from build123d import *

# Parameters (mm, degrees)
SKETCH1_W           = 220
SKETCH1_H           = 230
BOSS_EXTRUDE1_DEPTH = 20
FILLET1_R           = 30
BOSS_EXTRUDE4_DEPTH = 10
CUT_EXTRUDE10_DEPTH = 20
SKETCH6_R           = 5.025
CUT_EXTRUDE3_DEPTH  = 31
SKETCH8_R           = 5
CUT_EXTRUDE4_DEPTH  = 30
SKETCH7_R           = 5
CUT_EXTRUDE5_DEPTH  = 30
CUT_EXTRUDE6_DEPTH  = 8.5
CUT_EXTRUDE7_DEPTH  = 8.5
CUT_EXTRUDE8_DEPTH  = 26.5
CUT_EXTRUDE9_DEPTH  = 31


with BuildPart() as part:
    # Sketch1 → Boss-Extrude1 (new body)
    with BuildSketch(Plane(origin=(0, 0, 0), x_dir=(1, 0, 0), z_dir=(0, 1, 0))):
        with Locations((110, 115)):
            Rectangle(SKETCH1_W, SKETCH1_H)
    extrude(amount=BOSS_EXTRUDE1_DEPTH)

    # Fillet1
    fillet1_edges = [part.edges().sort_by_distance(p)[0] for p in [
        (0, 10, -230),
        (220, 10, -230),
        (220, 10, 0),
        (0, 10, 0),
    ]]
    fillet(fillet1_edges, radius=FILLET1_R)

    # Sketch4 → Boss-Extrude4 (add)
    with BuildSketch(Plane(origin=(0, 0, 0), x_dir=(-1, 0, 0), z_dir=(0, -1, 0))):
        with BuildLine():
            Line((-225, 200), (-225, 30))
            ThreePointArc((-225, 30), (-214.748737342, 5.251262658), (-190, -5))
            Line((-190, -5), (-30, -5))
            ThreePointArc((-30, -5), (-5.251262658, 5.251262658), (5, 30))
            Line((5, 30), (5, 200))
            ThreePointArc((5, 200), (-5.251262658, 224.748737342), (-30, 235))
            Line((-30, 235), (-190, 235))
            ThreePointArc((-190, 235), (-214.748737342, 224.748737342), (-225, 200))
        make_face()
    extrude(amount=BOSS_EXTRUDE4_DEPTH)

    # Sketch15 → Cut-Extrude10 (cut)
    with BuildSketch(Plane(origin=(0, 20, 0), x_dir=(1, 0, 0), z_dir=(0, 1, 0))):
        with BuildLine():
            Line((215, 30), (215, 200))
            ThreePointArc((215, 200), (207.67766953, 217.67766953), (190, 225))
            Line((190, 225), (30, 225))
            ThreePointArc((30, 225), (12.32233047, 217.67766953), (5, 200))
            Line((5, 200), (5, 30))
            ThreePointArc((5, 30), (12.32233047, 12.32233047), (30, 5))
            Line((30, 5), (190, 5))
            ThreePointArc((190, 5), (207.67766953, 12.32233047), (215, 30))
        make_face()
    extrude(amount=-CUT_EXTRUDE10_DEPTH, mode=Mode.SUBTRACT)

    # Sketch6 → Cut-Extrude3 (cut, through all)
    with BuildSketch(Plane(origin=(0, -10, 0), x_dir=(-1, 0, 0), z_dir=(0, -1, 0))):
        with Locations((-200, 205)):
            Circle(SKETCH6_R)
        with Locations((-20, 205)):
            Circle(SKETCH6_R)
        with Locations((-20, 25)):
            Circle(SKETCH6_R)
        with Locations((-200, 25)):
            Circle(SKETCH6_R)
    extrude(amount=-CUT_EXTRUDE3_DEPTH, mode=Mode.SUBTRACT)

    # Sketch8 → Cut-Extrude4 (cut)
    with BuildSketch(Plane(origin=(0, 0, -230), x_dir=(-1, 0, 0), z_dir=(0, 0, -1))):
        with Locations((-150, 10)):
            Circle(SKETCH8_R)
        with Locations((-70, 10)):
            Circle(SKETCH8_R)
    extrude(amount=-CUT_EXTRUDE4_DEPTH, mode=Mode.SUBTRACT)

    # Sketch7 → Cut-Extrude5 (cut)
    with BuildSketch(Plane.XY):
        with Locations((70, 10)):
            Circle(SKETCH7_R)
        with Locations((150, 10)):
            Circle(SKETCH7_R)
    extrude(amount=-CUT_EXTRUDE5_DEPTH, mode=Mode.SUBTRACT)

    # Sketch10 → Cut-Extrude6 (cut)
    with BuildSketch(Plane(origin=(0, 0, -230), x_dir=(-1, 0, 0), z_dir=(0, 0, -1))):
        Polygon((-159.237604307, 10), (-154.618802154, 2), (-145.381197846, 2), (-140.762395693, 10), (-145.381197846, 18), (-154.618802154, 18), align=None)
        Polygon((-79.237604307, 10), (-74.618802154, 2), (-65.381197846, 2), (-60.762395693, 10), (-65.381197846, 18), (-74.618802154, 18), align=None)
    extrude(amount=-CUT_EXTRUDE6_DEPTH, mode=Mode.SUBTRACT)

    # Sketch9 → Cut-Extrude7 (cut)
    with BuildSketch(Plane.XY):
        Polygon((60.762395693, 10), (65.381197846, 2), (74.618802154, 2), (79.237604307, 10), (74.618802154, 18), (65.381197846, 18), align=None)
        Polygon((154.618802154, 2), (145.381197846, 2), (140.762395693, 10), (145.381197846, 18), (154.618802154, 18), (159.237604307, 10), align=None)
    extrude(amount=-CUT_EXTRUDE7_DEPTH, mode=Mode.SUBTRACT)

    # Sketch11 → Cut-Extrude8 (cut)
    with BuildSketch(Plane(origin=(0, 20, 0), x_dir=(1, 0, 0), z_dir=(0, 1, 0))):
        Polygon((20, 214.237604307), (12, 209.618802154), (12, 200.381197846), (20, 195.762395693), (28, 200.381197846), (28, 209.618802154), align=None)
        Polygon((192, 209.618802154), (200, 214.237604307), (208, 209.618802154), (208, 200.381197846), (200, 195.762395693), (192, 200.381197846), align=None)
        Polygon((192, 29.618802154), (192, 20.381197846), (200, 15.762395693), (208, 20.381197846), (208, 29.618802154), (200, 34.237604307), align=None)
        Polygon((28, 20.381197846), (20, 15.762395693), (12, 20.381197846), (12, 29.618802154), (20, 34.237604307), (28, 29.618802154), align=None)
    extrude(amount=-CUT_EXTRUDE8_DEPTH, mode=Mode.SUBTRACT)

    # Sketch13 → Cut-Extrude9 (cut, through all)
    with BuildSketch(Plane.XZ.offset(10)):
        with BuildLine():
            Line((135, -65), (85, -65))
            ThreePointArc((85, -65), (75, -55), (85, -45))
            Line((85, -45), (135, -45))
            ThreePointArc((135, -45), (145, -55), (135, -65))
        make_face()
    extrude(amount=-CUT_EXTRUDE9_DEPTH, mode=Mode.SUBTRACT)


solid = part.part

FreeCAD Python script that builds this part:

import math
import FreeCAD as App
import Part
import Sketcher
Q = App.Units.Quantity


def edges_at(feature, points):
    """Names of the edges that pass closest to the given points."""
    edges = feature.Shape.Edges
    near = lambda p: min(range(len(edges)), key=lambda i: edges[i].distToShape(Part.Vertex(*p))[0])
    return sorted({f"Edge{near(p) + 1}" for p in points})


def add_polygon(sketch, points):
    """Adds a closed chain of lines whose ends are joined by coincident constraints."""
    first, n = sketch.GeometryCount, len(points)
    for a, b in zip(points, points[1:] + points[:1]):
        sketch.addGeometry(Part.LineSegment(App.Vector(*a, 0), App.Vector(*b, 0)), False)
    for i in range(n):
        sketch.addConstraint(Sketcher.Constraint("Coincident", first + i, 2, first + (i + 1) % n, 1))

doc = App.newDocument("Part")
body = doc.addObject("PartDesign::Body", "Body")

sketch1 = body.newObject("Sketcher::SketchObject", "Sketch")
sketch1.AttachmentSupport = (doc.getObject("XZ_Plane"), [""])
sketch1.MapMode = "FlatFace"
add_polygon(sketch1, [(0, -230), (0, 0), (220, 0), (220, -230)])
sketch1.addConstraint(Sketcher.Constraint("Vertical", 0))
sketch1.addConstraint(Sketcher.Constraint("Horizontal", 1))
sketch1.addConstraint(Sketcher.Constraint("Vertical", 2))
sketch1.addConstraint(Sketcher.Constraint("Horizontal", 3))
sketch1.addConstraint(Sketcher.Constraint("Coincident", 0, 2, -1, 1))
sketch1.addConstraint(Sketcher.Constraint("DistanceX", 1, 1, 1, 2, Q("220 mm")))
sketch1.addConstraint(Sketcher.Constraint("DistanceY", 0, 1, 0, 2, Q("230 mm")))
pad1 = body.newObject("PartDesign::Pad", "Pad")
pad1.Profile = sketch1
pad1.Length = 20
pad1.Reversed = True
doc.recompute()

fillet = body.newObject("PartDesign::Fillet", "Fillet")
fillet.Base = (pad1, edges_at(pad1, [
    (0, 10, -230),
    (220, 10, -230),
    (220, 10, 0),
    (0, 10, 0),
]))
fillet.Radius = 30

sketch2 = body.newObject("Sketcher::SketchObject", "Sketch001")
sketch2.AttachmentSupport = (doc.getObject("XZ_Plane"), [""])
sketch2.MapMode = "FlatFace"
sketch2.addGeometry(Part.LineSegment(App.Vector(225, -200, 0), App.Vector(225, -30, 0)), False)
sketch2.addGeometry(Part.ArcOfCircle(Part.Circle(App.Vector(190, -30, 0), App.Vector(0, 0, 1), 35), math.radians(0), math.radians(90)), False)
sketch2.addGeometry(Part.LineSegment(App.Vector(190, 5, 0), App.Vector(30, 5, 0)), False)
sketch2.addGeometry(Part.ArcOfCircle(Part.Circle(App.Vector(30, -30, 0), App.Vector(0, 0, 1), 35), math.radians(90), math.radians(180)), False)
sketch2.addGeometry(Part.LineSegment(App.Vector(-5, -30, 0), App.Vector(-5, -200, 0)), False)
sketch2.addGeometry(Part.ArcOfCircle(Part.Circle(App.Vector(30, -200, 0), App.Vector(0, 0, 1), 35), math.radians(180), math.radians(270)), False)
sketch2.addGeometry(Part.LineSegment(App.Vector(30, -235, 0), App.Vector(190, -235, 0)), False)
sketch2.addGeometry(Part.ArcOfCircle(Part.Circle(App.Vector(190, -200, 0), App.Vector(0, 0, 1), 35), math.radians(-90), math.radians(0)), False)
sketch2.addConstraint(Sketcher.Constraint("Tangent", 0, 2, 1, 1))
sketch2.addConstraint(Sketcher.Constraint("Tangent", 1, 2, 2, 1))
sketch2.addConstraint(Sketcher.Constraint("Tangent", 2, 2, 3, 1))
sketch2.addConstraint(Sketcher.Constraint("Tangent", 3, 2, 4, 1))
sketch2.addConstraint(Sketcher.Constraint("Tangent", 4, 2, 5, 1))
sketch2.addConstraint(Sketcher.Constraint("Tangent", 5, 2, 6, 1))
sketch2.addConstraint(Sketcher.Constraint("Tangent", 6, 2, 7, 1))
sketch2.addConstraint(Sketcher.Constraint("Tangent", 7, 2, 0, 1))
sketch2.addConstraint(Sketcher.Constraint("Vertical", 0))
sketch2.addConstraint(Sketcher.Constraint("Horizontal", 2))
sketch2.addConstraint(Sketcher.Constraint("Vertical", 4))
sketch2.addConstraint(Sketcher.Constraint("Horizontal", 6))
sketch2.addConstraint(Sketcher.Constraint("Equal", 1, 3))
sketch2.addConstraint(Sketcher.Constraint("Equal", 3, 5))
sketch2.addConstraint(Sketcher.Constraint("Equal", 5, 7))
sketch2.addConstraint(Sketcher.Constraint("Radius", 1, Q("35 mm")))
sketch2.addConstraint(Sketcher.Constraint("DistanceX", 2, 2, 2, 1, Q("160 mm")))
sketch2.addConstraint(Sketcher.Constraint("DistanceY", 0, 1, 0, 2, Q("170 mm")))
sketch2.addConstraint(Sketcher.Constraint("DistanceX", -1, 1, 1, 3, Q("190 mm")))
sketch2.addConstraint(Sketcher.Constraint("DistanceY", 1, 3, -1, 1, Q("30 mm")))
pad2 = body.newObject("PartDesign::Pad", "Pad001")
pad2.Profile = sketch2
pad2.Length = 10

sketch3 = body.newObject("Sketcher::SketchObject", "Sketch002")
sketch3.AttachmentSupport = (doc.getObject("XZ_Plane"), [""])
sketch3.MapMode = "FlatFace"
sketch3.AttachmentOffset = App.Placement(App.Vector(0, 0, -20), App.Rotation())
sketch3.addGeometry(Part.LineSegment(App.Vector(215, -30, 0), App.Vector(215, -200, 0)), False)
sketch3.addGeometry(Part.ArcOfCircle(Part.Circle(App.Vector(190, -200, 0), App.Vector(0, 0, 1), 25), math.radians(-90), math.radians(0)), False)
sketch3.addGeometry(Part.LineSegment(App.Vector(190, -225, 0), App.Vector(30, -225, 0)), False)
sketch3.addGeometry(Part.ArcOfCircle(Part.Circle(App.Vector(30, -200, 0), App.Vector(0, 0, 1), 25), math.radians(180), math.radians(270)), False)
sketch3.addGeometry(Part.LineSegment(App.Vector(5, -200, 0), App.Vector(5, -30, 0)), False)
sketch3.addGeometry(Part.ArcOfCircle(Part.Circle(App.Vector(30, -30, 0), App.Vector(0, 0, 1), 25), math.radians(90), math.radians(180)), False)
sketch3.addGeometry(Part.LineSegment(App.Vector(30, -5, 0), App.Vector(190, -5, 0)), False)
sketch3.addGeometry(Part.ArcOfCircle(Part.Circle(App.Vector(190, -30, 0), App.Vector(0, 0, 1), 25), math.radians(0), math.radians(90)), False)
sketch3.addConstraint(Sketcher.Constraint("Tangent", 0, 2, 1, 2))
sketch3.addConstraint(Sketcher.Constraint("Tangent", 1, 1, 2, 1))
sketch3.addConstraint(Sketcher.Constraint("Tangent", 2, 2, 3, 2))
sketch3.addConstraint(Sketcher.Constraint("Tangent", 3, 1, 4, 1))
sketch3.addConstraint(Sketcher.Constraint("Tangent", 4, 2, 5, 2))
sketch3.addConstraint(Sketcher.Constraint("Tangent", 5, 1, 6, 1))
sketch3.addConstraint(Sketcher.Constraint("Tangent", 6, 2, 7, 2))
sketch3.addConstraint(Sketcher.Constraint("Tangent", 7, 1, 0, 1))
sketch3.addConstraint(Sketcher.Constraint("Vertical", 0))
sketch3.addConstraint(Sketcher.Constraint("Horizontal", 2))
sketch3.addConstraint(Sketcher.Constraint("Vertical", 4))
sketch3.addConstraint(Sketcher.Constraint("Horizontal", 6))
sketch3.addConstraint(Sketcher.Constraint("Equal", 1, 3))
sketch3.addConstraint(Sketcher.Constraint("Equal", 3, 5))
sketch3.addConstraint(Sketcher.Constraint("Equal", 5, 7))
sketch3.addConstraint(Sketcher.Constraint("Radius", 1, Q("25 mm")))
sketch3.addConstraint(Sketcher.Constraint("DistanceX", 2, 2, 2, 1, Q("160 mm")))
sketch3.addConstraint(Sketcher.Constraint("DistanceY", 0, 2, 0, 1, Q("170 mm")))
sketch3.addConstraint(Sketcher.Constraint("DistanceX", -1, 1, 1, 3, Q("190 mm")))
sketch3.addConstraint(Sketcher.Constraint("DistanceY", 1, 3, -1, 1, Q("200 mm")))
pocket1 = body.newObject("PartDesign::Pocket", "Pocket")
pocket1.Profile = sketch3
pocket1.Length = 20
pocket1.Reversed = True

sketch4 = body.newObject("Sketcher::SketchObject", "Sketch003")
sketch4.AttachmentSupport = (doc.getObject("XZ_Plane"), [""])
sketch4.MapMode = "FlatFace"
sketch4.AttachmentOffset = App.Placement(App.Vector(0, 0, 10), App.Rotation())
sketch4.addGeometry(Part.Circle(App.Vector(200, -205, 0), App.Vector(0, 0, 1), 5.025), False)
sketch4.addGeometry(Part.Circle(App.Vector(20, -205, 0), App.Vector(0, 0, 1), 5.025), False)
sketch4.addGeometry(Part.Circle(App.Vector(20, -25, 0), App.Vector(0, 0, 1), 5.025), False)
sketch4.addGeometry(Part.Circle(App.Vector(200, -25, 0), App.Vector(0, 0, 1), 5.025), False)
sketch4.addConstraint(Sketcher.Constraint("Equal", 0, 1))
sketch4.addConstraint(Sketcher.Constraint("Equal", 1, 2))
sketch4.addConstraint(Sketcher.Constraint("Equal", 2, 3))
sketch4.addConstraint(Sketcher.Constraint("Horizontal", 0, 3, 1, 3))
sketch4.addConstraint(Sketcher.Constraint("Horizontal", 2, 3, 3, 3))
sketch4.addConstraint(Sketcher.Constraint("Vertical", 1, 3, 2, 3))
sketch4.addConstraint(Sketcher.Constraint("Vertical", 0, 3, 3, 3))
sketch4.addConstraint(Sketcher.Constraint("Diameter", 0, Q("10.05 mm")))
sketch4.addConstraint(Sketcher.Constraint("DistanceX", -1, 1, 0, 3, Q("200 mm")))
sketch4.addConstraint(Sketcher.Constraint("DistanceY", 0, 3, -1, 1, Q("205 mm")))
sketch4.addConstraint(Sketcher.Constraint("DistanceX", -1, 1, 1, 3, Q("20 mm")))
sketch4.addConstraint(Sketcher.Constraint("DistanceY", 2, 3, -1, 1, Q("25 mm")))
pocket2 = body.newObject("PartDesign::Pocket", "Pocket001")
pocket2.Profile = sketch4
pocket2.Type = "ThroughAll"

sketch5 = body.newObject("Sketcher::SketchObject", "Sketch004")
sketch5.AttachmentSupport = (doc.getObject("XY_Plane"), [""])
sketch5.MapMode = "FlatFace"
sketch5.AttachmentOffset = App.Placement(App.Vector(0, 0, -230), App.Rotation())
sketch5.addGeometry(Part.Circle(App.Vector(150, 10, 0), App.Vector(0, 0, 1), 5), False)
sketch5.addGeometry(Part.Circle(App.Vector(70, 10, 0), App.Vector(0, 0, 1), 5), False)
sketch5.addConstraint(Sketcher.Constraint("Equal", 0, 1))
sketch5.addConstraint(Sketcher.Constraint("Horizontal", 0, 3, 1, 3))
sketch5.addConstraint(Sketcher.Constraint("Diameter", 0, Q("10 mm")))
sketch5.addConstraint(Sketcher.Constraint("DistanceX", -1, 1, 0, 3, Q("150 mm")))
sketch5.addConstraint(Sketcher.Constraint("DistanceY", -1, 1, 0, 3, Q("10 mm")))
sketch5.addConstraint(Sketcher.Constraint("DistanceX", -1, 1, 1, 3, Q("70 mm")))
pocket3 = body.newObject("PartDesign::Pocket", "Pocket002")
pocket3.Profile = sketch5
pocket3.Length = 30
pocket3.Reversed = True

sketch6 = body.newObject("Sketcher::SketchObject", "Sketch005")
sketch6.AttachmentSupport = (doc.getObject("XY_Plane"), [""])
sketch6.MapMode = "FlatFace"
sketch6.addGeometry(Part.Circle(App.Vector(70, 10, 0), App.Vector(0, 0, 1), 5), False)
sketch6.addGeometry(Part.Circle(App.Vector(150, 10, 0), App.Vector(0, 0, 1), 5), False)
sketch6.addConstraint(Sketcher.Constraint("Equal", 0, 1))
sketch6.addConstraint(Sketcher.Constraint("Horizontal", 0, 3, 1, 3))
sketch6.addConstraint(Sketcher.Constraint("Diameter", 0, Q("10 mm")))
sketch6.addConstraint(Sketcher.Constraint("DistanceX", -1, 1, 0, 3, Q("70 mm")))
sketch6.addConstraint(Sketcher.Constraint("DistanceY", -1, 1, 0, 3, Q("10 mm")))
sketch6.addConstraint(Sketcher.Constraint("DistanceX", -1, 1, 1, 3, Q("150 mm")))
pocket4 = body.newObject("PartDesign::Pocket", "Pocket003")
pocket4.Profile = sketch6
pocket4.Length = 30

sketch7 = body.newObject("Sketcher::SketchObject", "Sketch006")
sketch7.AttachmentSupport = (doc.getObject("XY_Plane"), [""])
sketch7.MapMode = "FlatFace"
sketch7.AttachmentOffset = App.Placement(App.Vector(0, 0, -230), App.Rotation())
add_polygon(sketch7, [(159.237604, 10), (154.618802, 2), (145.381198, 2), (140.762396, 10), (145.381198, 18), (154.618802, 18)])
add_polygon(sketch7, [(79.237604, 10), (74.618802, 2), (65.381198, 2), (60.762396, 10), (65.381198, 18), (74.618802, 18)])
sketch7.addConstraint(Sketcher.Constraint("Horizontal", 1))
sketch7.addConstraint(Sketcher.Constraint("Horizontal", 4))
sketch7.addConstraint(Sketcher.Constraint("Horizontal", 7))
sketch7.addConstraint(Sketcher.Constraint("Horizontal", 10))
sketch7.addConstraint(Sketcher.Constraint("Parallel", 0, 3))
sketch7.addConstraint(Sketcher.Constraint("Parallel", 2, 5))
sketch7.addConstraint(Sketcher.Constraint("Parallel", 3, 6))
sketch7.addConstraint(Sketcher.Constraint("Parallel", 5, 8))
sketch7.addConstraint(Sketcher.Constraint("Parallel", 6, 9))
sketch7.addConstraint(Sketcher.Constraint("Parallel", 8, 11))
sketch7.addConstraint(Sketcher.Constraint("Horizontal", 2, 2, 5, 2))
sketch7.addConstraint(Sketcher.Constraint("Horizontal", 1, 2, 6, 2))
sketch7.addConstraint(Sketcher.Constraint("Horizontal", 5, 2, 8, 2))
sketch7.addConstraint(Sketcher.Constraint("Horizontal", 4, 2, 9, 2))
sketch7.addConstraint(Sketcher.Constraint("Horizontal", 8, 2, 11, 2))
sketch7.addConstraint(Sketcher.Constraint("Vertical", 1, 2, 3, 2))
sketch7.addConstraint(Sketcher.Constraint("Vertical", 0, 2, 4, 2))
sketch7.addConstraint(Sketcher.Constraint("Equal", 4, 7))
sketch7.addConstraint(Sketcher.Constraint("Angle", 0, Q("-120 deg")))
sketch7.addConstraint(Sketcher.Constraint("DistanceY", -1, 1, 0, 2, Q("2 mm")))
sketch7.addConstraint(Sketcher.Constraint("DistanceY", -1, 1, 2, 2, Q("10 mm")))
sketch7.addConstraint(Sketcher.Constraint("DistanceX", 6, 2, 0, 2, Q("80 mm")))
sketch7.addConstraint(Sketcher.Constraint("DistanceX", 1, 2, 1, 1, Q("9.237604 mm")))
sketch7.addConstraint(Sketcher.Constraint("DistanceX", -1, 1, 0, 2, Q("154.618802 mm")))
pocket5 = body.newObject("PartDesign::Pocket", "Pocket004")
pocket5.Profile = sketch7
pocket5.Length = 8.5
pocket5.Reversed = True

sketch8 = body.newObject("Sketcher::SketchObject", "Sketch007")
sketch8.AttachmentSupport = (doc.getObject("XY_Plane"), [""])
sketch8.MapMode = "FlatFace"
add_polygon(sketch8, [(60.762396, 10), (65.381198, 2), (74.618802, 2), (79.237604, 10), (74.618802, 18), (65.381198, 18)])
add_polygon(sketch8, [(145.381198, 2), (154.618802, 2), (159.237604, 10), (154.618802, 18), (145.381198, 18), (140.762396, 10)])
sketch8.addConstraint(Sketcher.Constraint("Horizontal", 1))
sketch8.addConstraint(Sketcher.Constraint("Horizontal", 4))
sketch8.addConstraint(Sketcher.Constraint("Horizontal", 6))
sketch8.addConstraint(Sketcher.Constraint("Horizontal", 9))
sketch8.addConstraint(Sketcher.Constraint("Parallel", 0, 3))
sketch8.addConstraint(Sketcher.Constraint("Parallel", 2, 5))
sketch8.addConstraint(Sketcher.Constraint("Parallel", 5, 7))
sketch8.addConstraint(Sketcher.Constraint("Parallel", 3, 8))
sketch8.addConstraint(Sketcher.Constraint("Parallel", 7, 10))
sketch8.addConstraint(Sketcher.Constraint("Parallel", 8, 11))
sketch8.addConstraint(Sketcher.Constraint("Horizontal", 2, 2, 5, 2))
sketch8.addConstraint(Sketcher.Constraint("Horizontal", 1, 2, 6, 2))
sketch8.addConstraint(Sketcher.Constraint("Horizontal", 5, 2, 7, 2))
sketch8.addConstraint(Sketcher.Constraint("Horizontal", 4, 2, 8, 2))
sketch8.addConstraint(Sketcher.Constraint("Horizontal", 7, 2, 10, 2))
sketch8.addConstraint(Sketcher.Constraint("Vertical", 1, 2, 3, 2))
sketch8.addConstraint(Sketcher.Constraint("Vertical", 0, 2, 4, 2))
sketch8.addConstraint(Sketcher.Constraint("Equal", 4, 6))
sketch8.addConstraint(Sketcher.Constraint("Angle", 0, Q("-60 deg")))
sketch8.addConstraint(Sketcher.Constraint("DistanceY", -1, 1, 0, 2, Q("2 mm")))
sketch8.addConstraint(Sketcher.Constraint("DistanceY", -1, 1, 2, 2, Q("10 mm")))
sketch8.addConstraint(Sketcher.Constraint("DistanceX", 1, 2, 6, 2, Q("80 mm")))
sketch8.addConstraint(Sketcher.Constraint("DistanceX", 1, 1, 1, 2, Q("9.237604 mm")))
sketch8.addConstraint(Sketcher.Constraint("DistanceX", -1, 1, 0, 2, Q("65.381198 mm")))
pocket6 = body.newObject("PartDesign::Pocket", "Pocket005")
pocket6.Profile = sketch8
pocket6.Length = 8.5

sketch9 = body.newObject("Sketcher::SketchObject", "Sketch008")
sketch9.AttachmentSupport = (doc.getObject("XZ_Plane"), [""])
sketch9.MapMode = "FlatFace"
sketch9.AttachmentOffset = App.Placement(App.Vector(0, 0, -20), App.Rotation())
add_polygon(sketch9, [(20, -214.237604), (12, -209.618802), (12, -200.381198), (20, -195.762396), (28, -200.381198), (28, -209.618802)])
add_polygon(sketch9, [(200, -214.237604), (192, -209.618802), (192, -200.381198), (200, -195.762396), (208, -200.381198), (208, -209.618802)])
add_polygon(sketch9, [(192, -29.618802), (192, -20.381198), (200, -15.762396), (208, -20.381198), (208, -29.618802), (200, -34.237604)])
add_polygon(sketch9, [(20, -15.762396), (28, -20.381198), (28, -29.618802), (20, -34.237604), (12, -29.618802), (12, -20.381198)])
sketch9.addConstraint(Sketcher.Constraint("Vertical", 1))
sketch9.addConstraint(Sketcher.Constraint("Vertical", 4))
sketch9.addConstraint(Sketcher.Constraint("Vertical", 7))
sketch9.addConstraint(Sketcher.Constraint("Vertical", 10))
sketch9.addConstraint(Sketcher.Constraint("Vertical", 12))
sketch9.addConstraint(Sketcher.Constraint("Vertical", 15))
sketch9.addConstraint(Sketcher.Constraint("Vertical", 19))
sketch9.addConstraint(Sketcher.Constraint("Vertical", 22))
sketch9.addConstraint(Sketcher.Constraint("Parallel", 0, 3))
sketch9.addConstraint(Sketcher.Constraint("Parallel", 2, 5))
sketch9.addConstraint(Sketcher.Constraint("Parallel", 3, 6))
sketch9.addConstraint(Sketcher.Constraint("Parallel", 5, 8))
sketch9.addConstraint(Sketcher.Constraint("Parallel", 6, 9))
sketch9.addConstraint(Sketcher.Constraint("Parallel", 8, 11))
sketch9.addConstraint(Sketcher.Constraint("Parallel", 11, 13))
sketch9.addConstraint(Sketcher.Constraint("Parallel", 9, 14))
sketch9.addConstraint(Sketcher.Constraint("Parallel", 13, 16))
sketch9.addConstraint(Sketcher.Constraint("Parallel", 14, 17))
sketch9.addConstraint(Sketcher.Constraint("Parallel", 17, 18))
sketch9.addConstraint(Sketcher.Constraint("Parallel", 16, 20))
sketch9.addConstraint(Sketcher.Constraint("Parallel", 18, 21))
sketch9.addConstraint(Sketcher.Constraint("Parallel", 20, 23))
sketch9.addConstraint(Sketcher.Constraint("Horizontal", 1, 2, 3, 2))
sketch9.addConstraint(Sketcher.Constraint("Horizontal", 0, 2, 4, 2))
sketch9.addConstraint(Sketcher.Constraint("Horizontal", 4, 2, 6, 2))
sketch9.addConstraint(Sketcher.Constraint("Horizontal", 3, 2, 7, 2))
sketch9.addConstraint(Sketcher.Constraint("Horizontal", 2, 2, 8, 2))
sketch9.addConstraint(Sketcher.Constraint("Horizontal", 7, 2, 9, 2))
sketch9.addConstraint(Sketcher.Constraint("Horizontal", 6, 2, 10, 2))
sketch9.addConstraint(Sketcher.Constraint("Horizontal", 12, 2, 14, 2))
sketch9.addConstraint(Sketcher.Constraint("Horizontal", 15, 2, 17, 2))
sketch9.addConstraint(Sketcher.Constraint("Horizontal", 14, 2, 18, 2))
sketch9.addConstraint(Sketcher.Constraint("Horizontal", 17, 2, 19, 2))
sketch9.addConstraint(Sketcher.Constraint("Horizontal", 16, 2, 20, 2))
sketch9.addConstraint(Sketcher.Constraint("Horizontal", 19, 2, 21, 2))
sketch9.addConstraint(Sketcher.Constraint("Horizontal", 18, 2, 22, 2))
sketch9.addConstraint(Sketcher.Constraint("Vertical", 2, 2, 5, 2))
sketch9.addConstraint(Sketcher.Constraint("Vertical", 7, 2, 12, 2))
sketch9.addConstraint(Sketcher.Constraint("Vertical", 11, 2, 13, 2))
sketch9.addConstraint(Sketcher.Constraint("Vertical", 4, 2, 18, 2))
sketch9.addConstraint(Sketcher.Constraint("Equal", 10, 12))
sketch9.addConstraint(Sketcher.Constraint("Angle", 0, Q("150 deg")))
sketch9.addConstraint(Sketcher.Constraint("DistanceX", -1, 1, 0, 2, Q("12 mm")))
sketch9.addConstraint(Sketcher.Constraint("DistanceX", -1, 1, 2, 2, Q("20 mm")))
sketch9.addConstraint(Sketcher.Constraint("DistanceX", -1, 1, 6, 2, Q("192 mm")))
sketch9.addConstraint(Sketcher.Constraint("DistanceY", 7, 2, 12, 2, Q("180 mm")))
sketch9.addConstraint(Sketcher.Constraint("DistanceY", 1, 1, 1, 2, Q("9.237604 mm")))
sketch9.addConstraint(Sketcher.Constraint("DistanceY", 0, 2, -1, 1, Q("209.618802 mm")))
pocket7 = body.newObject("PartDesign::Pocket", "Pocket006")
pocket7.Profile = sketch9
pocket7.Length = 26.5
pocket7.Reversed = True

sketch10 = body.newObject("Sketcher::SketchObject", "Sketch009")
sketch10.AttachmentSupport = (doc.getObject("XZ_Plane"), [""])
sketch10.MapMode = "FlatFace"
sketch10.AttachmentOffset = App.Placement(App.Vector(0, 0, 10), App.Rotation())
sketch10.addGeometry(Part.LineSegment(App.Vector(85, -65, 0), App.Vector(135, -65, 0)), False)
sketch10.addGeometry(Part.ArcOfCircle(Part.Circle(App.Vector(135, -55, 0), App.Vector(0, 0, 1), 10), math.radians(-90), math.radians(90)), False)
sketch10.addGeometry(Part.LineSegment(App.Vector(135, -45, 0), App.Vector(85, -45, 0)), False)
sketch10.addGeometry(Part.ArcOfCircle(Part.Circle(App.Vector(85, -55, 0), App.Vector(0, 0, 1), 10), math.radians(90), math.radians(270)), False)
sketch10.addConstraint(Sketcher.Constraint("Tangent", 0, 2, 1, 1))
sketch10.addConstraint(Sketcher.Constraint("Tangent", 1, 2, 2, 1))
sketch10.addConstraint(Sketcher.Constraint("Tangent", 2, 2, 3, 1))
sketch10.addConstraint(Sketcher.Constraint("Tangent", 3, 2, 0, 1))
sketch10.addConstraint(Sketcher.Constraint("Horizontal", 0))
sketch10.addConstraint(Sketcher.Constraint("Horizontal", 2))
sketch10.addConstraint(Sketcher.Constraint("Radius", 1, Q("10 mm")))
sketch10.addConstraint(Sketcher.Constraint("DistanceX", 0, 1, 0, 2, Q("50 mm")))
sketch10.addConstraint(Sketcher.Constraint("DistanceX", -1, 1, 1, 3, Q("135 mm")))
sketch10.addConstraint(Sketcher.Constraint("DistanceY", 1, 3, -1, 1, Q("55 mm")))
pocket8 = body.newObject("PartDesign::Pocket", "Pocket007")
pocket8.Profile = sketch10
pocket8.Type = "ThroughAll"

doc.recompute()
